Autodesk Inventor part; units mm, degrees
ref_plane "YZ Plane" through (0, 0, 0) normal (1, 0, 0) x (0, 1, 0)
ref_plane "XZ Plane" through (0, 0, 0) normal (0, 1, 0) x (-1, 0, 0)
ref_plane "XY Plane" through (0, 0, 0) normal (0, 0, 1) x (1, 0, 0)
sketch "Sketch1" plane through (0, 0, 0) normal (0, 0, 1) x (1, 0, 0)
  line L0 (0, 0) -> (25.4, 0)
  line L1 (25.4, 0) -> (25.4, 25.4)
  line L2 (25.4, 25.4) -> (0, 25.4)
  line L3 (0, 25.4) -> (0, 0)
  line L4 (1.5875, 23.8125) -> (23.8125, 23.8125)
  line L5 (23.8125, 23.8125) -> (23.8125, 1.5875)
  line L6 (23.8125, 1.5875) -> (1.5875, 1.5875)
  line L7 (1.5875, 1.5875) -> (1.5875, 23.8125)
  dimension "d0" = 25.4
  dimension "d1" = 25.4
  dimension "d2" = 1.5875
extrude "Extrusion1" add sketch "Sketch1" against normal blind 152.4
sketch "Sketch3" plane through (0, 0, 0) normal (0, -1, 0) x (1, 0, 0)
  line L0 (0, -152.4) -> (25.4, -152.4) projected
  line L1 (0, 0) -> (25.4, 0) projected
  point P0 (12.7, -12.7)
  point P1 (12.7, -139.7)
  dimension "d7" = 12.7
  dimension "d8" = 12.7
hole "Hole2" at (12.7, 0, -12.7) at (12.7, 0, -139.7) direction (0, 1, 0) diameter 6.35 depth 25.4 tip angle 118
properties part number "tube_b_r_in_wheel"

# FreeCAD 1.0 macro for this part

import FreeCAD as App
import Part
import Sketcher

V = App.Vector
Q = App.Units.Quantity


def add_polygon(sketch, points):
    """Adds a closed chain of lines whose ends are joined by coincident constraints."""
    first, n = sketch.GeometryCount, len(points)
    for a, b in zip(points, points[1:] + points[:1]):
        sketch.addGeometry(Part.LineSegment(App.Vector(*a, 0), App.Vector(*b, 0)), False)
    for i in range(n):
        sketch.addConstraint(Sketcher.Constraint("Coincident", first + i, 2, first + (i + 1) % n, 1))

doc = App.newDocument("Part")
params = doc.addObject("Spreadsheet::Sheet", "Params")
for row, (alias, value) in enumerate([
    ("sketch1_width", "1 in"),
    ("pad1_length", "6 in"),
    ("sketch2_diameter", "0.25 in"),
    ("hole_diameter", "0.25 in"),
    ("hole_depth", "1 in"),
], start=1):
    params.set(f"A{row}", alias)
    params.set(f"B{row}", "=" + value)
    params.setAlias(f"B{row}", alias)

body = doc.addObject("PartDesign::Body", "Body")

sketch1 = body.newObject("Sketcher::SketchObject", "Sketch")
sketch1.AttachmentSupport = (doc.getObject("XY_Plane"), [""])
sketch1.MapMode = "FlatFace"
add_polygon(sketch1, [(0, 25.4), (0, 0), (25.4, 0), (25.4, 25.4)])
add_polygon(sketch1, [(1.5875, 1.5875), (1.5875, 23.8125), (23.8125, 23.8125), (23.8125, 1.5875)])
sketch1.addConstraint([
    Sketcher.Constraint("Vertical", 0),
    Sketcher.Constraint("Horizontal", 1),
    Sketcher.Constraint("Vertical", 2),
    Sketcher.Constraint("Horizontal", 3),
    Sketcher.Constraint("Vertical", 4),
    Sketcher.Constraint("Horizontal", 5),
    Sketcher.Constraint("Vertical", 6),
    Sketcher.Constraint("Horizontal", 7),
    Sketcher.Constraint("Coincident", 0, 2, -1, 1),
    Sketcher.Constraint("Equal", 3, 0),
    Sketcher.Constraint("Equal", 7, 4),
    Sketcher.Constraint("DistanceX", 1, 1, 1, 2, Q("1 in")),
    Sketcher.Constraint("DistanceX", -1, 1, 4, 2, Q("0.0625 in")),
    Sketcher.Constraint("DistanceY", -1, 1, 6, 2, Q("0.0625 in")),
    Sketcher.Constraint("DistanceY", 4, 2, 3, 2, Q("0.0625 in")),
])
sketch1.setExpression("Constraints[19]", "Params.sketch1_width")
pad1 = body.newObject("PartDesign::Pad", "Pad")
pad1.Profile = sketch1
pad1.setExpression("Length", "Params.pad1_length")
pad1.Reversed = True

sketch2 = body.newObject("Sketcher::SketchObject", "Sketch001")
sketch2.AttachmentSupport = (doc.getObject("XZ_Plane"), [""])
sketch2.MapMode = "FlatFace"
sketch2.addGeometry([
    Part.Circle(V(12.7, -12.7, 0), V(0, 0, 1), 3.175),
    Part.Circle(V(12.7, -139.7, 0), V(0, 0, 1), 3.175),
], False)
sketch2.addConstraint([
    Sketcher.Constraint("Equal", 0, 1),
    Sketcher.Constraint("Vertical", 0, 3, 1, 3),
    Sketcher.Constraint("Diameter", 0, Q("0.25 in")),
    Sketcher.Constraint("DistanceY", 1, 3, 0, 3, Q("5 in")),
    Sketcher.Constraint("DistanceX", -1, 1, 0, 3, Q("0.5 in")),
    Sketcher.Constraint("DistanceY", 0, 3, -1, 1, Q("0.5 in")),
])
sketch2.setExpression("Constraints[2]", "Params.sketch2_diameter")
doc.recompute()
hole = body.newObject("PartDesign::Hole", "Hole")
hole.Profile = sketch2
hole.ThreadType = "None"
hole.setExpression("Diameter", "Params.hole_diameter")
hole.DepthType = "Dimension"
hole.setExpression("Depth", "Params.hole_depth")
hole.DrillPoint = "Angled"
hole.DrillPointAngle = 118

doc.recompute()
